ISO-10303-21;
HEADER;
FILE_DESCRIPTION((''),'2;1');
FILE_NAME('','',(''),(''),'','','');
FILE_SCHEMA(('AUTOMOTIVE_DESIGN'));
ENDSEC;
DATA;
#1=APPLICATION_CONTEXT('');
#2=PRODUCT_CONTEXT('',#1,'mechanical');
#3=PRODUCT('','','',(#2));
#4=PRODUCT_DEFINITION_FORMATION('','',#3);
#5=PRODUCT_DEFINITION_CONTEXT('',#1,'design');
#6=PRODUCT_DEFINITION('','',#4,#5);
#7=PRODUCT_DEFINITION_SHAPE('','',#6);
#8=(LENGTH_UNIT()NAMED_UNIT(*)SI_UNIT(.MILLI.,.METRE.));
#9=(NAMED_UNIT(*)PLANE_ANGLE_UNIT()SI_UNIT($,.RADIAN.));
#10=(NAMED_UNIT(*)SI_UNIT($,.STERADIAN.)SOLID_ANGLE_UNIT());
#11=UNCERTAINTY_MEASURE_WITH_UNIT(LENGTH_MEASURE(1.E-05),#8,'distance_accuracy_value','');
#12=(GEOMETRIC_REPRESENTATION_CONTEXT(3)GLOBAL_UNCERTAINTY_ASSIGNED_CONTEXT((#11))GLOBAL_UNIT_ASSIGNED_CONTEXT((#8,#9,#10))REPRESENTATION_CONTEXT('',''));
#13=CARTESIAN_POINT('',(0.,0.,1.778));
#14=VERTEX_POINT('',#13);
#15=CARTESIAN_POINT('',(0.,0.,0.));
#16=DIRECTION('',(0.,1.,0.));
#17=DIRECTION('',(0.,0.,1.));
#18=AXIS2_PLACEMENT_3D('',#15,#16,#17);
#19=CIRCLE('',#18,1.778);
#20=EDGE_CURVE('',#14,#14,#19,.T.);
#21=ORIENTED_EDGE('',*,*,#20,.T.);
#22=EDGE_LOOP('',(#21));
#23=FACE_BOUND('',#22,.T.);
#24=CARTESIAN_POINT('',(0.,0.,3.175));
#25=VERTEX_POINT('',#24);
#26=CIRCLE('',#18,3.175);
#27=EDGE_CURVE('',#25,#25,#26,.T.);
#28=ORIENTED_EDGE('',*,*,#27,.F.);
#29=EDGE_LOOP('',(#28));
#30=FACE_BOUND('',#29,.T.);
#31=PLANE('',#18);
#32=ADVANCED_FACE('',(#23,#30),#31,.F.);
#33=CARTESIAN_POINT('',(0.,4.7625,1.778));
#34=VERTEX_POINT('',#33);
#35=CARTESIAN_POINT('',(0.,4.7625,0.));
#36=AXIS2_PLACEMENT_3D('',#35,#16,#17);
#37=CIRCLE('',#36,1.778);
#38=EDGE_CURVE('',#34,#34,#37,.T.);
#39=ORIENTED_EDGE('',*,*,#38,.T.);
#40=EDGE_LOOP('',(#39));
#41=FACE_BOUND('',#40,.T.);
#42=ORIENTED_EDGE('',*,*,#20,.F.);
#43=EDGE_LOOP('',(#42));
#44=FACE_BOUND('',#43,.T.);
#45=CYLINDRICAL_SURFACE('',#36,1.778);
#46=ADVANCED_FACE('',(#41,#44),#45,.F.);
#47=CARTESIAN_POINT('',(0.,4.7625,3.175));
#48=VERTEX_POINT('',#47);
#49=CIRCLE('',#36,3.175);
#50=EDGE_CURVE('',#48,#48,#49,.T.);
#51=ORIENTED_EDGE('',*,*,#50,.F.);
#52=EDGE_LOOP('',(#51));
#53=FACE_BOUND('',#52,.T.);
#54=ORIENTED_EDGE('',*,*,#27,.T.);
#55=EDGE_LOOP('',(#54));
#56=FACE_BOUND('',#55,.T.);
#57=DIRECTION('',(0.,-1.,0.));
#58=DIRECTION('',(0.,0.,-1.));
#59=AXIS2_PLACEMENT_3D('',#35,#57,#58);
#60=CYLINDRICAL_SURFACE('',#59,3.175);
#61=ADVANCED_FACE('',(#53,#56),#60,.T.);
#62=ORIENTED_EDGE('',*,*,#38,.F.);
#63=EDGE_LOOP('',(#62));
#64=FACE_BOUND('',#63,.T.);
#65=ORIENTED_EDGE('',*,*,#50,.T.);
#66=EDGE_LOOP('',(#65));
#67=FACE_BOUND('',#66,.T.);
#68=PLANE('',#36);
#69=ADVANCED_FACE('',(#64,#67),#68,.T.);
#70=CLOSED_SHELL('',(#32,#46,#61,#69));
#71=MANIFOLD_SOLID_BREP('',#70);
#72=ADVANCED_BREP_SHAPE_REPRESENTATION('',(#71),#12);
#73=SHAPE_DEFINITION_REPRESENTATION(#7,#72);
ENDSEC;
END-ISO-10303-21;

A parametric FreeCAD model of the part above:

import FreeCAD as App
import Part
import Sketcher
from FreeCAD import Vector
Q = App.Units.Quantity

doc = App.newDocument("Part")
body = doc.addObject("PartDesign::Body", "Body")

# Sketch on XZ plane
sketch1 = body.newObject("Sketcher::SketchObject", "Sketch")
sketch1.AttachmentSupport = (doc.getObject("XZ_Plane"), [""])
sketch1.MapMode = "FlatFace"
sketch1.addGeometry(Part.Circle(Vector(0, 0, 0), Vector(0, 0, 1), 3.175), False)
sketch1.addConstraint([
    Sketcher.Constraint("Coincident", 0, 3, -1, 1),
    Sketcher.Constraint("Diameter", 0, Q("0.25 in")),
])
pad1 = body.newObject("PartDesign::Pad", "Pad")
pad1.Profile = sketch1
pad1.Length = Q("0.1875 in")
pad1.Reversed = True

# Sketch on XZ plane
sketch2 = body.newObject("Sketcher::SketchObject", "Sketch001")
sketch2.AttachmentSupport = (doc.getObject("XZ_Plane"), [""])
sketch2.MapMode = "FlatFace"
sketch2.AttachmentOffset = App.Placement(Vector(0, 0, -0.1875 * 25.4), App.Rotation())
sketch2.addGeometry(Part.Circle(Vector(0, 0, 0), Vector(0, 0, 1), 1.778), False)
sketch2.addConstraint([
    Sketcher.Constraint("Coincident", 0, 3, -1, 1),
    Sketcher.Constraint("Diameter", 0, Q("0.14 in")),
])
doc.recompute()
hole = body.newObject("PartDesign::Hole", "Hole")
hole.Profile = sketch2
hole.ThreadType = "None"
hole.Diameter = Q("0.14 in")
hole.DepthType = "Dimension"
hole.Depth = Q("0.3 in")
hole.DrillPoint = "Angled"
hole.DrillPointAngle = 118
hole.Reversed = True

doc.recompute()
